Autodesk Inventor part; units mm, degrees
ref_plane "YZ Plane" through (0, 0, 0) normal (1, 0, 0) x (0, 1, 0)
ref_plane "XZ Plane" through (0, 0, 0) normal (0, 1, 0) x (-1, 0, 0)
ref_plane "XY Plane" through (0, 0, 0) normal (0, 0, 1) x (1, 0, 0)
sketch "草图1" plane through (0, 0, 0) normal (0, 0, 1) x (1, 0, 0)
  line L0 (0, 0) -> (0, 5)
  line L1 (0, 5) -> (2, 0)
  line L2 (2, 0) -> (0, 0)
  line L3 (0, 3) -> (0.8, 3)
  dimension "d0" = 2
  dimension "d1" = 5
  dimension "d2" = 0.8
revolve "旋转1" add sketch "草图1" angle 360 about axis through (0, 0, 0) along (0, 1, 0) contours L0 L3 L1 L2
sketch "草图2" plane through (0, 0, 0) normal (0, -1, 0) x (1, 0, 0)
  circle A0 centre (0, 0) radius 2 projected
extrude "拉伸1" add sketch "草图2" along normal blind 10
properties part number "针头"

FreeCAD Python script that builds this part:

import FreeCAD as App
import Part
import Sketcher

doc = App.newDocument("Part")
params = doc.addObject("Spreadsheet::Sheet", "Params")
for row, (alias, value) in enumerate([
    ("sketch1_width", "2 mm"),
    ("sketch1_width2", "0.8 mm"),
    ("sketch1_height", "3 mm"),
    ("revolution_angle", "360 deg"),
    ("sketch2_diameter", "4 mm"),
    ("pad1_length", "10 mm"),
], start=1):
    params.set(f"A{row}", alias)
    params.set(f"B{row}", "=" + value)
    params.setAlias(f"B{row}", alias)

body = doc.addObject("PartDesign::Body", "Body")

# Sketch on XY plane
sketch1 = body.newObject("Sketcher::SketchObject", "Sketch")
sketch1.AttachmentSupport = (doc.getObject("XY_Plane"), [""])
sketch1.MapMode = "FlatFace"
sketch1.addGeometry([
    Part.LineSegment(App.Vector(0, 3, 0), App.Vector(0, 0, 0)),
    Part.LineSegment(App.Vector(0, 0, 0), App.Vector(2, 0, 0)),
    Part.LineSegment(App.Vector(2, 0, 0), App.Vector(0.8, 3, 0)),
    Part.LineSegment(App.Vector(0.8, 3, 0), App.Vector(0, 3, 0)),
], False)
sketch1.addConstraint([
    Sketcher.Constraint("Coincident", 0, 2, 1, 1),
    Sketcher.Constraint("Coincident", 1, 2, 2, 1),
    Sketcher.Constraint("Coincident", 2, 2, 3, 1),
    Sketcher.Constraint("Coincident", 3, 2, 0, 1),
    Sketcher.Constraint("Vertical", 0),
    Sketcher.Constraint("Horizontal", 1),
    Sketcher.Constraint("Horizontal", 3),
    Sketcher.Constraint("Coincident", 0, 2, -1, 1),
    Sketcher.Constraint("DistanceX", 1, 1, 1, 2, 2.0),
    Sketcher.Constraint("DistanceX", 3, 2, 3, 1, 0.8),
    Sketcher.Constraint("DistanceY", 0, 2, 0, 1, 3.0),
])
sketch1.setExpression("Constraints[8]", "Params.sketch1_width")
sketch1.setExpression("Constraints[9]", "Params.sketch1_width2")
sketch1.setExpression("Constraints[10]", "Params.sketch1_height")
revolution = body.newObject("PartDesign::Revolution", "Revolution")
revolution.Profile = sketch1
revolution.ReferenceAxis = (sketch1, ["V_Axis"])
revolution.setExpression("Angle", "Params.revolution_angle")

# Sketch on XZ plane
sketch2 = body.newObject("Sketcher::SketchObject", "Sketch001")
sketch2.AttachmentSupport = (doc.getObject("XZ_Plane"), [""])
sketch2.MapMode = "FlatFace"
sketch2.addGeometry(Part.Circle(App.Vector(0, 0, 0), App.Vector(0, 0, 1), 2), False)
sketch2.addConstraint([
    Sketcher.Constraint("Coincident", 0, 3, -1, 1),
    Sketcher.Constraint("Diameter", 0, 4.0),
])
sketch2.setExpression("Constraints[1]", "Params.sketch2_diameter")
pad1 = body.newObject("PartDesign::Pad", "Pad")
pad1.Profile = sketch2
pad1.setExpression("Length", "Params.pad1_length")

doc.recompute()
